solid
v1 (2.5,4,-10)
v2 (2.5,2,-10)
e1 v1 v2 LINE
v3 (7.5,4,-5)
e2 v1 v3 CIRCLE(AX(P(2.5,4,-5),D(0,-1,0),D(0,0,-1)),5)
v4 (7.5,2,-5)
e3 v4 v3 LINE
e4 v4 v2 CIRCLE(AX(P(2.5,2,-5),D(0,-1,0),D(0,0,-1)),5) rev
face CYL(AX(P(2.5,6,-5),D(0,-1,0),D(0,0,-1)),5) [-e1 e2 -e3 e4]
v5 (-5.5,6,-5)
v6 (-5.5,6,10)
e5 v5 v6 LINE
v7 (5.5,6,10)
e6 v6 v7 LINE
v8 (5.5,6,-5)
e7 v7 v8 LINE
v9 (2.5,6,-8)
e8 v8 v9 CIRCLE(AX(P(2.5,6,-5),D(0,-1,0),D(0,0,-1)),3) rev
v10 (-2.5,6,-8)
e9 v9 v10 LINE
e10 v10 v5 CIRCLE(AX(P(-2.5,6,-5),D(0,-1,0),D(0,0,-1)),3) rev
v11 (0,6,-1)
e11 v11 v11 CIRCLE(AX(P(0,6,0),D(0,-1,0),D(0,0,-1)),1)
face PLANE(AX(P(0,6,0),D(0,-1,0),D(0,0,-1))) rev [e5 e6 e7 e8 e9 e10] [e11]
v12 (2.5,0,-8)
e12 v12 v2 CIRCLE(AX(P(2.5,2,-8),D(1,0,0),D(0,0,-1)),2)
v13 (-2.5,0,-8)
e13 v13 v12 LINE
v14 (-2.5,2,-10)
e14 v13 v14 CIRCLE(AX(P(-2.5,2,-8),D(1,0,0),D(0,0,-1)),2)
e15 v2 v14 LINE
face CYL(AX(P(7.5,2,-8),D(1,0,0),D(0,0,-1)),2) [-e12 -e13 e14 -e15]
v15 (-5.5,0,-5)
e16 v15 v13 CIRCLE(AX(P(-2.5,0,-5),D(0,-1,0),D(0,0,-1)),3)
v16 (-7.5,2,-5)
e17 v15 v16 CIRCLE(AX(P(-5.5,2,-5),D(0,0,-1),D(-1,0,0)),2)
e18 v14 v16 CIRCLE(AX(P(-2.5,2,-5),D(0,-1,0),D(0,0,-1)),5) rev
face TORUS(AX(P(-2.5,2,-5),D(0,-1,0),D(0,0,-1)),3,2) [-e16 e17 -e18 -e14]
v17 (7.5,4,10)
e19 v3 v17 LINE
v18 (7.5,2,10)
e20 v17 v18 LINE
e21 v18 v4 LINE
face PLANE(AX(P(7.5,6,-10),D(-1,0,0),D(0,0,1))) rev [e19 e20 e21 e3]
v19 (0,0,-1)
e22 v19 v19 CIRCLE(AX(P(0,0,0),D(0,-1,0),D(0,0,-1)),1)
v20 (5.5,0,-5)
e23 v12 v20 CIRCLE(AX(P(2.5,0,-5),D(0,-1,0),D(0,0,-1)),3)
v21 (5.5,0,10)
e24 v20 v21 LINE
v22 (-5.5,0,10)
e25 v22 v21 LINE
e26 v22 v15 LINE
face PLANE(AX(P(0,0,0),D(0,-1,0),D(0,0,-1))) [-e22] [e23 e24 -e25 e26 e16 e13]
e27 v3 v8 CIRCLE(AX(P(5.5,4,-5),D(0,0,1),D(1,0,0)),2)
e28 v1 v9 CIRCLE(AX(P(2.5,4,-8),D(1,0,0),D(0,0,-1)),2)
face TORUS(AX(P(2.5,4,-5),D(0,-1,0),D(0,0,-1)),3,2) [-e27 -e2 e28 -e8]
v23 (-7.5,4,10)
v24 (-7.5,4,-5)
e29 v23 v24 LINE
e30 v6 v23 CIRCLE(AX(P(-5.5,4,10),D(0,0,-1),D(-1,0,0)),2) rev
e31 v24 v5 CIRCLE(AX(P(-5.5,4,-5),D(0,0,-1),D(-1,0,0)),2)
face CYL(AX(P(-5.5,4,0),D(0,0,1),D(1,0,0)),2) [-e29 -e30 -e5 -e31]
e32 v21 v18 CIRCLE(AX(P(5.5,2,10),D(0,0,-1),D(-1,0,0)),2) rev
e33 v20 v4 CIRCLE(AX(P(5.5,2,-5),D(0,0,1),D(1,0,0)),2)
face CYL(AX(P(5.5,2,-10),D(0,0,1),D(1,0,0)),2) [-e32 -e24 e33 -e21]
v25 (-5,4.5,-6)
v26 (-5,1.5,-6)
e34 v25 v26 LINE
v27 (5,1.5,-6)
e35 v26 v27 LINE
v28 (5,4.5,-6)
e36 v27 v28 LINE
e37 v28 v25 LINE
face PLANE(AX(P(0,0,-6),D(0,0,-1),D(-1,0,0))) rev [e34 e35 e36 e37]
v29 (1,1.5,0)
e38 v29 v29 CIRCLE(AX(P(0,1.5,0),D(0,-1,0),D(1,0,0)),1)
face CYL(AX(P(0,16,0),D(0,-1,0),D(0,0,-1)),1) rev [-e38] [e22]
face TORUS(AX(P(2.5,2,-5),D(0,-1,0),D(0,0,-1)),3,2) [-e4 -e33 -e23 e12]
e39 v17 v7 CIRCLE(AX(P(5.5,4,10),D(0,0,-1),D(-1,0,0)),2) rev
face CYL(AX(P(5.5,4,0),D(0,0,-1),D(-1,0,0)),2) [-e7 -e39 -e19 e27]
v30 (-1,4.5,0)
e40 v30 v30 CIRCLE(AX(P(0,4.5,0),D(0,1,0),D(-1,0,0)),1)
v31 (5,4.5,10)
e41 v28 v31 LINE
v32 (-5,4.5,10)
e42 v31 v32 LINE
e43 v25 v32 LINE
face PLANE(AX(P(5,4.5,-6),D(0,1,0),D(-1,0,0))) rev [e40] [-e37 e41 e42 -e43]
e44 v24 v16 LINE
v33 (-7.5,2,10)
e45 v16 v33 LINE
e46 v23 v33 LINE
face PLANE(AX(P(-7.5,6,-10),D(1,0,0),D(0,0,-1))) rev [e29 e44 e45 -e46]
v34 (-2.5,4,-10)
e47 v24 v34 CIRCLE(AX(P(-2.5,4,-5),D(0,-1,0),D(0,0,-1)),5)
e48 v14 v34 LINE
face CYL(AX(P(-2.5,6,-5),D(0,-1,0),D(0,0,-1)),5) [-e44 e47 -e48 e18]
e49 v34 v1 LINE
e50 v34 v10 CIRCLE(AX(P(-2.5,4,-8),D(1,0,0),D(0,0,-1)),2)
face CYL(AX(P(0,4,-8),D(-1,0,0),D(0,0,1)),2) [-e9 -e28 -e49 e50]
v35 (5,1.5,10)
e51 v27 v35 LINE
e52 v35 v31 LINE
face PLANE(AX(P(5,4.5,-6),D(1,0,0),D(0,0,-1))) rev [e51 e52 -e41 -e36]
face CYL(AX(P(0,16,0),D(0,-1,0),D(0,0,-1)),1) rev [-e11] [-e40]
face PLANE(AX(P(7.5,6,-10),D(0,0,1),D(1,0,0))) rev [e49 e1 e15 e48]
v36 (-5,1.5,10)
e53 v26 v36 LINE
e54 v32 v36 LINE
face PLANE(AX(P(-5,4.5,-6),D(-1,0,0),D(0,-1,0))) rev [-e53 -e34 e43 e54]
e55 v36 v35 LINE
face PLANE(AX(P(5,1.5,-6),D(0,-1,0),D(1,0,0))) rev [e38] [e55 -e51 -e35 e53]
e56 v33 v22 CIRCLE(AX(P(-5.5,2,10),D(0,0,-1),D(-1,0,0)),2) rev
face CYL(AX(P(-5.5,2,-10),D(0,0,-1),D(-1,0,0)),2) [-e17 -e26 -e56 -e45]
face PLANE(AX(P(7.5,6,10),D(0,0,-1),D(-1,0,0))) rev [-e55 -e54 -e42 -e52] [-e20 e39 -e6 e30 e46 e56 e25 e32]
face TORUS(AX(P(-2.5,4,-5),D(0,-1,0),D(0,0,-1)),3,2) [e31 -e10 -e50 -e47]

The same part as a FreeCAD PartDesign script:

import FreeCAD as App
import Part
import Sketcher
Q = App.Units.Quantity


def edges_at(feature, points):
    """Names of the edges that pass closest to the given points."""
    edges = feature.Shape.Edges
    near = lambda p: min(range(len(edges)), key=lambda i: edges[i].distToShape(Part.Vertex(*p))[0])
    return sorted({f"Edge{near(p) + 1}" for p in points})


def add_polygon(sketch, points):
    """Adds a closed chain of lines whose ends are joined by coincident constraints."""
    first, n = sketch.GeometryCount, len(points)
    for a, b in zip(points, points[1:] + points[:1]):
        sketch.addGeometry(Part.LineSegment(App.Vector(*a, 0), App.Vector(*b, 0)), False)
    for i in range(n):
        sketch.addConstraint(Sketcher.Constraint("Coincident", first + i, 2, first + (i + 1) % n, 1))

doc = App.newDocument("Part")
body = doc.addObject("PartDesign::Body", "Body")

# Sketch on XZ plane
sketch1 = body.newObject("Sketcher::SketchObject", "Sketch")
sketch1.AttachmentSupport = (doc.getObject("XZ_Plane"), [""])
sketch1.MapMode = "FlatFace"
add_polygon(sketch1, [(-8, -10), (-8, 10), (8, 10), (8, -10)])  # lines 0-3
sketch1.addConstraint([
    Sketcher.Constraint("Vertical", 0),
    Sketcher.Constraint("Horizontal", 1),
    Sketcher.Constraint("Vertical", 2),
    Sketcher.Constraint("Horizontal", 3),
    Sketcher.Constraint("Symmetric", 0, 2, 2, 2, -1, 1),
    Sketcher.Constraint("DistanceX", 1, 1, 1, 2, Q("15 mm")),
    Sketcher.Constraint("DistanceY", 0, 1, 0, 2, Q("20 mm")),
])
pad1 = body.newObject("PartDesign::Pad", "Pad")
pad1.Profile = sketch1
pad1.Length = 6
pad1.Reversed = True

# Sketch on XY plane
sketch2 = body.newObject("Sketcher::SketchObject", "Sketch001")
sketch2.AttachmentSupport = (doc.getObject("XY_Plane"), [""])
sketch2.MapMode = "FlatFace"
sketch2.AttachmentOffset = App.Placement(App.Vector(0, 0, 10), App.Rotation())
add_polygon(sketch2, [(-5, 4.5), (-5, 1.5), (5, 1.5), (5, 4.5)])  # lines 0-3
sketch2.addConstraint([
    Sketcher.Constraint("Vertical", 0),
    Sketcher.Constraint("Horizontal", 1),
    Sketcher.Constraint("Vertical", 2),
    Sketcher.Constraint("Horizontal", 3),
    Sketcher.Constraint("DistanceX", 1, 1, 1, 2, Q("10 mm")),
    Sketcher.Constraint("DistanceY", 0, 2, 0, 1, Q("3 mm")),
    Sketcher.Constraint("DistanceX", 0, 2, -1, 1, Q("5 mm")),
    Sketcher.Constraint("DistanceY", -1, 1, 0, 2, Q("1.5 mm")),
])
pocket1 = body.newObject("PartDesign::Pocket", "Pocket")
pocket1.Profile = sketch2
pocket1.Length = 16
doc.recompute()

fillet = body.newObject("PartDesign::Fillet", "Fillet")
fillet.Base = (pocket1, edges_at(pocket1, [(7.5, 3, -10)]))
fillet.Radius = 5
doc.recompute()

fillet2 = body.newObject("PartDesign::Fillet", "Fillet001")
fillet2.Base = (fillet, edges_at(fillet, [(-7.5, 3, -10)]))
fillet2.Radius = 5
doc.recompute()

fillet3 = body.newObject("PartDesign::Fillet", "Fillet002")
fillet3.Base = (fillet2, edges_at(fillet2, [
    (7.5, 6, 2.5),
    (0, 0, -10),
    (0, 6, -10),
    (6.036, 0, -8.536),
    (6.036, 6, -8.536),
    (-7.5, 0, 2.5),
    (-7.5, 6, 2.5),
    (-6.036, 0, -8.536),
    (-6.036, 6, -8.536),
    (7.5, 0, 2.5),
]))
fillet3.Radius = 2

# Sketch on XZ plane
sketch3 = body.newObject("Sketcher::SketchObject", "Sketch002")
sketch3.AttachmentSupport = (doc.getObject("XZ_Plane"), [""])
sketch3.MapMode = "FlatFace"
sketch3.addGeometry(Part.Circle(App.Vector(0, 0, 0), App.Vector(0, 0, 1), 1), False)
sketch3.addConstraint([
    Sketcher.Constraint("Coincident", 0, 3, -1, 1),
    Sketcher.Constraint("Diameter", 0, Q("2 mm")),
])
pocket2 = body.newObject("PartDesign::Pocket", "Pocket001")
pocket2.Profile = sketch3
pocket2.Length = 16

doc.recompute()
